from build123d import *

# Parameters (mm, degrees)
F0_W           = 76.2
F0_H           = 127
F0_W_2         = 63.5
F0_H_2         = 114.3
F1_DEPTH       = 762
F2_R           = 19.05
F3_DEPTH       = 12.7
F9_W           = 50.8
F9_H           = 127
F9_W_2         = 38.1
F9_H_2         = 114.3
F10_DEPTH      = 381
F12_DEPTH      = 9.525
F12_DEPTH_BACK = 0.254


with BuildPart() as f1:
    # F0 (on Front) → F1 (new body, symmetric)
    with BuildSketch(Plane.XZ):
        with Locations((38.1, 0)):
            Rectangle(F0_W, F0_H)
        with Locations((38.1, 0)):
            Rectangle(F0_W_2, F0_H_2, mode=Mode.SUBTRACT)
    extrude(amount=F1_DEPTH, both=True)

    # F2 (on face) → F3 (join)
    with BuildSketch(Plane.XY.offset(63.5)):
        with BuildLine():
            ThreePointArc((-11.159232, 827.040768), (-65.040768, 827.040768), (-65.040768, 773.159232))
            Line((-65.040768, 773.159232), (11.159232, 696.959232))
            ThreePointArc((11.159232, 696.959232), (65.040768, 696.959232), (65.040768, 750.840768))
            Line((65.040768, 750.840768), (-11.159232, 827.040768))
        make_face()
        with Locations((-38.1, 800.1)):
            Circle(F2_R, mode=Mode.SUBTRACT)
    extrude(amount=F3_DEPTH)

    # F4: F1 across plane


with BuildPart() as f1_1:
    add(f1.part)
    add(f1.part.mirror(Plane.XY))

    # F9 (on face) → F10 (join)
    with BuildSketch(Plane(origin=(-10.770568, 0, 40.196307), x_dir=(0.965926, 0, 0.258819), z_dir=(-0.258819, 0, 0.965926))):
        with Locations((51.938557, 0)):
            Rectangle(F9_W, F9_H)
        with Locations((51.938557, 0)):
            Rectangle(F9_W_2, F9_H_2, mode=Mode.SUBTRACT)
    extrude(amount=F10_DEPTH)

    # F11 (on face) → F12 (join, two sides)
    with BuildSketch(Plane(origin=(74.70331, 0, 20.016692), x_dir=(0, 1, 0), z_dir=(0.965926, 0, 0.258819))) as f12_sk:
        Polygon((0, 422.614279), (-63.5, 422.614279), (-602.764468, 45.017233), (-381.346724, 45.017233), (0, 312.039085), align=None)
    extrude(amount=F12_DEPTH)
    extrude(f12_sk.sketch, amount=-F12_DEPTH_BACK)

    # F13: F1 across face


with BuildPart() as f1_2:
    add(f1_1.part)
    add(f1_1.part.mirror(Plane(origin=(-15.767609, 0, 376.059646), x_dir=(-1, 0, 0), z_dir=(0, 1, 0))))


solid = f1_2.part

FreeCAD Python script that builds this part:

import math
import FreeCAD as App
import Part
import Sketcher
from FreeCAD import Vector
Q = App.Units.Quantity

doc = App.newDocument("Part")
body = doc.addObject("PartDesign::Body", "Body")

# Sketch on XZ plane
sketch1 = body.newObject("Sketcher::SketchObject", "Sketch")
sketch1.AttachmentSupport = (doc.getObject("XZ_Plane"), [""])
sketch1.MapMode = "FlatFace"
sketch1.addGeometry([
    Part.LineSegment(Vector(0, 64, 0), Vector(0, -64, 0)),  # 0
    Part.LineSegment(Vector(0, -64, 0), Vector(76, -64, 0)),  # 1
    Part.LineSegment(Vector(76, -64, 0), Vector(76, 64, 0)),  # 2
    Part.LineSegment(Vector(76, 64, 0), Vector(0, 64, 0)),  # 3
    Part.LineSegment(Vector(70, -57, 0), Vector(6, -57, 0)),  # 4
    Part.LineSegment(Vector(6, -57, 0), Vector(6, 57, 0)),  # 5
    Part.LineSegment(Vector(6, 57, 0), Vector(70, 57, 0)),  # 6
    Part.LineSegment(Vector(70, 57, 0), Vector(70, -57, 0)),  # 7
], False)
sketch1.addConstraint([
    Sketcher.Constraint("Coincident", 0, 2, 1, 1),
    Sketcher.Constraint("Coincident", 1, 2, 2, 1),
    Sketcher.Constraint("Coincident", 2, 2, 3, 1),
    Sketcher.Constraint("Coincident", 3, 2, 0, 1),
    Sketcher.Constraint("Coincident", 4, 2, 5, 1),
    Sketcher.Constraint("Coincident", 5, 2, 6, 1),
    Sketcher.Constraint("Coincident", 6, 2, 7, 1),
    Sketcher.Constraint("Coincident", 7, 2, 4, 1),
    Sketcher.Constraint("Vertical", 0),
    Sketcher.Constraint("Horizontal", 1),
    Sketcher.Constraint("Vertical", 2),
    Sketcher.Constraint("Horizontal", 3),
    Sketcher.Constraint("Horizontal", 4),
    Sketcher.Constraint("Vertical", 5),
    Sketcher.Constraint("Horizontal", 6),
    Sketcher.Constraint("Vertical", 7),
    Sketcher.Constraint("Symmetric", 0, 2, 3, 2, -1, 1),
    Sketcher.Constraint("DistanceX", 1, 1, 1, 2, Q("3 in")),
    Sketcher.Constraint("DistanceY", 0, 2, 0, 1, Q("5 in")),
    Sketcher.Constraint("DistanceX", 4, 2, 4, 1, Q("2.5 in")),
    Sketcher.Constraint("DistanceY", 5, 1, 5, 2, Q("4.5 in")),
    Sketcher.Constraint("DistanceX", -1, 1, 4, 2, Q("0.25 in")),
    Sketcher.Constraint("DistanceY", 4, 2, -1, 1, Q("2.25 in")),
])
pad1 = body.newObject("PartDesign::Pad", "Pad")
pad1.Profile = sketch1
pad1.Length = Q("60 in")
pad1.Midplane = True

# Sketch on XY plane
sketch2 = body.newObject("Sketcher::SketchObject", "Sketch001")
sketch2.AttachmentSupport = (doc.getObject("XY_Plane"), [""])
sketch2.MapMode = "FlatFace"
sketch2.AttachmentOffset = App.Placement(Vector(0, 0, 2.5 * 25.4), App.Rotation())
sketch2.addGeometry([
    Part.ArcOfCircle(Part.Circle(Vector(-38, 800, 0), Vector(0, 0, 1), 38), math.radians(45), math.radians(225)),  # 0
    Part.LineSegment(Vector(-65, 773, 0), Vector(11, 697, 0)),  # 1
    Part.ArcOfCircle(Part.Circle(Vector(38, 724, 0), Vector(0, 0, 1), 38), math.radians(-135), math.radians(45)),  # 2
    Part.LineSegment(Vector(65, 751, 0), Vector(-11, 827, 0)),  # 3
    Part.Circle(Vector(-38, 800, 0), Vector(0, 0, 1), 19),  # 4
], False)
sketch2.addConstraint([
    Sketcher.Constraint("Tangent", 0, 2, 1, 1),
    Sketcher.Constraint("Tangent", 1, 2, 2, 1),
    Sketcher.Constraint("Tangent", 2, 2, 3, 1),
    Sketcher.Constraint("Tangent", 3, 2, 0, 1),
    Sketcher.Constraint("Coincident", 4, 3, 0, 3),
    Sketcher.Constraint("Equal", 0, 2),
    Sketcher.Constraint("Diameter", 4, Q("1.5 in")),
    Sketcher.Constraint("Radius", 0, Q("1.5 in")),
    Sketcher.Constraint("Angle", 1, Q("-45 deg")),
    Sketcher.Constraint("DistanceX", 0, 3, 2, 3, Q("3 in")),
    Sketcher.Constraint("DistanceX", 0, 3, -1, 1, Q("1.5 in")),
    Sketcher.Constraint("DistanceY", -1, 1, 0, 3, Q("31.5 in")),
])
pad2 = body.newObject("PartDesign::Pad", "Pad001")
pad2.Profile = sketch2
pad2.Length = Q("0.5 in")
body2 = doc.addObject("PartDesign::Body", "Body001")
doc.recompute()

body2.BaseFeature = body
doc.recompute()

mirroring = doc.addObject("Part::Mirroring", "Mirroring")
mirroring.Source = body
mirroring.Base = Vector(0, 0, 0)
mirroring.Normal = Vector(0, 0, 1)
body3 = doc.addObject("PartDesign::Body", "Body002")
body3.BaseFeature = mirroring
boolean = body2.newObject("PartDesign::Boolean", "Boolean")
boolean.Type = "Fuse"
boolean.addObjects([body3])
doc.recompute()

# Sketch on an angled plane
sketch3 = body2.newObject("Sketcher::SketchObject", "Sketch002")
sketch3.Placement = App.Placement(Vector(-10.770568, 0, 40.196307), App.Rotation(Vector(0.965925849, 0, 0.25881896), Vector(0, 1, 0), Vector(-0.25881896, 0, 0.965925849), "ZXY"))
sketch3.addGeometry([
    Part.LineSegment(Vector(27, 63, 0), Vector(27, -63, 0)),  # 0
    Part.LineSegment(Vector(27, -63, 0), Vector(77, -63, 0)),  # 1
    Part.LineSegment(Vector(77, -63, 0), Vector(77, 63, 0)),  # 2
    Part.LineSegment(Vector(77, 63, 0), Vector(27, 63, 0)),  # 3
    Part.LineSegment(Vector(71, -57, 0), Vector(33, -57, 0)),  # 4
    Part.LineSegment(Vector(33, -57, 0), Vector(33, 57, 0)),  # 5
    Part.LineSegment(Vector(33, 57, 0), Vector(71, 57, 0)),  # 6
    Part.LineSegment(Vector(71, 57, 0), Vector(71, -57, 0)),  # 7
], False)
sketch3.addConstraint([
    Sketcher.Constraint("Coincident", 0, 2, 1, 1),
    Sketcher.Constraint("Coincident", 1, 2, 2, 1),
    Sketcher.Constraint("Coincident", 2, 2, 3, 1),
    Sketcher.Constraint("Coincident", 3, 2, 0, 1),
    Sketcher.Constraint("Coincident", 4, 2, 5, 1),
    Sketcher.Constraint("Coincident", 5, 2, 6, 1),
    Sketcher.Constraint("Coincident", 6, 2, 7, 1),
    Sketcher.Constraint("Coincident", 7, 2, 4, 1),
    Sketcher.Constraint("Vertical", 0),
    Sketcher.Constraint("Horizontal", 1),
    Sketcher.Constraint("Vertical", 2),
    Sketcher.Constraint("Horizontal", 3),
    Sketcher.Constraint("Horizontal", 4),
    Sketcher.Constraint("Vertical", 5),
    Sketcher.Constraint("Horizontal", 6),
    Sketcher.Constraint("Vertical", 7),
    Sketcher.Constraint("DistanceX", 1, 1, 1, 2, Q("2 in")),
    Sketcher.Constraint("DistanceY", 0, 2, 0, 1, Q("5 in")),
    Sketcher.Constraint("DistanceX", 4, 2, 4, 1, Q("1.5 in")),
    Sketcher.Constraint("DistanceY", 5, 1, 5, 2, Q("4.5 in")),
    Sketcher.Constraint("DistanceY", 0, 2, -1, 1, Q("2.5 in")),
    Sketcher.Constraint("DistanceY", 4, 2, -1, 1, Q("2.25 in")),
    Sketcher.Constraint("DistanceX", 0, 2, 4, 2, Q("0.25 in")),
    Sketcher.Constraint("DistanceX", -1, 1, 0, 2, Q("26.538557 mm")),
])
pad3 = body2.newObject("PartDesign::Pad", "Pad002")
pad3.Profile = sketch3
pad3.Length = Q("15 in")

# Sketch on an angled plane
sketch4 = body2.newObject("Sketcher::SketchObject", "Sketch003")
sketch4.Placement = App.Placement(Vector(74.70331, 0, 20.016692), App.Rotation(Vector(0, 1, 0), Vector(-0.25881896, 0, 0.965925849), Vector(0.965925849, 0, 0.25881896), "ZXY"))
sketch4.addGeometry([
    Part.LineSegment(Vector(0, 423, 0), Vector(-64, 423, 0)),  # 0
    Part.LineSegment(Vector(-64, 423, 0), Vector(-603, 45, 0)),  # 1
    Part.LineSegment(Vector(-603, 45, 0), Vector(-381, 45, 0)),  # 2
    Part.LineSegment(Vector(-381, 45, 0), Vector(0, 312, 0)),  # 3
    Part.LineSegment(Vector(0, 312, 0), Vector(0, 423, 0)),  # 4
], False)
sketch4.addConstraint([
    Sketcher.Constraint("Coincident", 0, 2, 1, 1),
    Sketcher.Constraint("Coincident", 1, 2, 2, 1),
    Sketcher.Constraint("Coincident", 2, 2, 3, 1),
    Sketcher.Constraint("Coincident", 3, 2, 4, 1),
    Sketcher.Constraint("Coincident", 4, 2, 0, 1),
    Sketcher.Constraint("Horizontal", 0),
    Sketcher.Constraint("Horizontal", 2),
    Sketcher.Constraint("Vertical", 4),
    Sketcher.Constraint("PointOnObject", 3, 2, -2),
    Sketcher.Constraint("Parallel", 1, 3),
    Sketcher.Constraint("DistanceX", 0, 2, 0, 1, Q("2.5 in")),
    Sketcher.Constraint("Angle", 1, Q("-145 deg")),
    Sketcher.Constraint("Distance", 1, Q("658.320359 mm")),
    Sketcher.Constraint("Distance", 3, Q("465.538391 mm")),
    Sketcher.Constraint("DistanceY", -1, 1, 0, 2, Q("422.614279 mm")),
])
pad4 = body2.newObject("PartDesign::Pad", "Pad003")
pad4.Profile = sketch4
pad4.Type = "TwoLengths"
pad4.Length = Q("0.375 in")
pad4.Length2 = Q("0.01 in")
body4 = doc.addObject("PartDesign::Body", "Body003")
doc.recompute()

body4.BaseFeature = body2
doc.recompute()

mirroring2 = doc.addObject("Part::Mirroring", "Mirroring001")
mirroring2.Source = body2
mirroring2.Base = Vector(-15.767609, 0, 376.059646)
mirroring2.Normal = Vector(0, 1, 0)
body5 = doc.addObject("PartDesign::Body", "Body004")
body5.BaseFeature = mirroring2
boolean2 = body4.newObject("PartDesign::Boolean", "Boolean001")
boolean2.Type = "Fuse"
boolean2.addObjects([body5])
doc.recompute()
mirroring.Visibility = False
mirroring2.Visibility = False

doc.recompute()
